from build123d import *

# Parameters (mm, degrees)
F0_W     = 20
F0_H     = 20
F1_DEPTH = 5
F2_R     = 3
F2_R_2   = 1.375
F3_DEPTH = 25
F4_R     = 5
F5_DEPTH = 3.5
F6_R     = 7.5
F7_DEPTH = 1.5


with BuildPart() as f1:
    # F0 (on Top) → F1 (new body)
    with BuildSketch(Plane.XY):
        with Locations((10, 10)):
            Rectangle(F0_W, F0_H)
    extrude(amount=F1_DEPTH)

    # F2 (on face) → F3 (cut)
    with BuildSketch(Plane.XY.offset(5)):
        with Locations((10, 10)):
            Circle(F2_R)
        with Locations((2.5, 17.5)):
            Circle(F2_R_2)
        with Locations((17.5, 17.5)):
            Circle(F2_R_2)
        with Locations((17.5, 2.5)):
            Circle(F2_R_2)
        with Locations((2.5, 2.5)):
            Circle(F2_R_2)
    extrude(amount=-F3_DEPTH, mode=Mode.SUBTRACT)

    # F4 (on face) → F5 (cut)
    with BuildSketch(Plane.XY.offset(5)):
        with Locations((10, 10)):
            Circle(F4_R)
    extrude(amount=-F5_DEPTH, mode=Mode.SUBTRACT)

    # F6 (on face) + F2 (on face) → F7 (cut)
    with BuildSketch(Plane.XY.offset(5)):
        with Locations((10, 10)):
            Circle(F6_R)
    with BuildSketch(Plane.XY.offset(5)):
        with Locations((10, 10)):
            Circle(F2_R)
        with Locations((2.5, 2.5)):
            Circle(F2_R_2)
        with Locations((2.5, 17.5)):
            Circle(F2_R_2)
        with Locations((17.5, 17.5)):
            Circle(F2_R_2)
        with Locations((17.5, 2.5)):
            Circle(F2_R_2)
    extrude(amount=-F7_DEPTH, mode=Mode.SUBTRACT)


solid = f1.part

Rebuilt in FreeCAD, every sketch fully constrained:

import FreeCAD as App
import Part
import Sketcher

V = App.Vector

doc = App.newDocument("Part")
body = doc.addObject("PartDesign::Body", "Body")

# Sketch on XY plane
sketch1 = body.newObject("Sketcher::SketchObject", "Sketch")
sketch1.AttachmentSupport = (doc.getObject("XY_Plane"), [""])
sketch1.MapMode = "FlatFace"
sketch1.addGeometry([
    Part.LineSegment(V(0, 20, 0), V(0, 0, 0)),
    Part.LineSegment(V(0, 0, 0), V(20, 0, 0)),
    Part.LineSegment(V(20, 0, 0), V(20, 20, 0)),
    Part.LineSegment(V(20, 20, 0), V(0, 20, 0)),
], False)
sketch1.addConstraint([
    Sketcher.Constraint("Coincident", 0, 2, 1, 1),
    Sketcher.Constraint("Coincident", 1, 2, 2, 1),
    Sketcher.Constraint("Coincident", 2, 2, 3, 1),
    Sketcher.Constraint("Coincident", 3, 2, 0, 1),
    Sketcher.Constraint("Vertical", 0),
    Sketcher.Constraint("Horizontal", 1),
    Sketcher.Constraint("Vertical", 2),
    Sketcher.Constraint("Horizontal", 3),
    Sketcher.Constraint("Coincident", 0, 2, -1, 1),
    Sketcher.Constraint("Equal", 3, 0),
    Sketcher.Constraint("DistanceX", 1, 1, 1, 2, 20.0),
])
pad1 = body.newObject("PartDesign::Pad", "Pad")
pad1.Profile = sketch1
pad1.Length = 5

# Sketch on XY plane
sketch2 = body.newObject("Sketcher::SketchObject", "Sketch001")
sketch2.AttachmentSupport = (doc.getObject("XY_Plane"), [""])
sketch2.MapMode = "FlatFace"
sketch2.AttachmentOffset = App.Placement(V(0, 0, 5), App.Rotation())
sketch2.addGeometry([
    Part.Circle(V(10, 10, 0), V(0, 0, 1), 3),  # 0
    Part.Circle(V(2.5, 17.5, 0), V(0, 0, 1), 1.4),  # 1
    Part.Circle(V(17.5, 17.5, 0), V(0, 0, 1), 1.4),  # 2
    Part.Circle(V(17.5, 2.5, 0), V(0, 0, 1), 1.4),  # 3
    Part.Circle(V(2.5, 2.5, 0), V(0, 0, 1), 1.4),  # 4
], False)
sketch2.addConstraint([
    Sketcher.Constraint("Equal", 1, 2),
    Sketcher.Constraint("Equal", 2, 3),
    Sketcher.Constraint("Equal", 3, 4),
    Sketcher.Constraint("Horizontal", 1, 3, 2, 3),
    Sketcher.Constraint("Horizontal", 3, 3, 4, 3),
    Sketcher.Constraint("Vertical", 2, 3, 3, 3),
    Sketcher.Constraint("Vertical", 1, 3, 4, 3),
    Sketcher.Constraint("Diameter", 0, 6.0),
    Sketcher.Constraint("Diameter", 1, 2.75),
    Sketcher.Constraint("DistanceX", -1, 1, 0, 3, 10.0),
    Sketcher.Constraint("DistanceY", -1, 1, 0, 3, 10.0),
    Sketcher.Constraint("DistanceX", 1, 3, 2, 3, 15.0),
    Sketcher.Constraint("DistanceY", 3, 3, 2, 3, 15.0),
    Sketcher.Constraint("DistanceX", -1, 1, 1, 3, 2.5),
    Sketcher.Constraint("DistanceY", -1, 1, 1, 3, 17.5),
])
pocket1 = body.newObject("PartDesign::Pocket", "Pocket")
pocket1.Profile = sketch2
pocket1.Length = 25

# Sketch on XY plane
sketch3 = body.newObject("Sketcher::SketchObject", "Sketch002")
sketch3.AttachmentSupport = (doc.getObject("XY_Plane"), [""])
sketch3.MapMode = "FlatFace"
sketch3.AttachmentOffset = App.Placement(V(0, 0, 5), App.Rotation())
sketch3.addGeometry(Part.Circle(V(10, 10, 0), V(0, 0, 1), 5), False)
sketch3.addConstraint([
    Sketcher.Constraint("Diameter", 0, 10.0),
    Sketcher.Constraint("DistanceX", -1, 1, 0, 3, 10.0),
    Sketcher.Constraint("DistanceY", -1, 1, 0, 3, 10.0),
])
pocket2 = body.newObject("PartDesign::Pocket", "Pocket001")
pocket2.Profile = sketch3
pocket2.Length = 3.5

# Sketch on XY plane
sketch4 = body.newObject("Sketcher::SketchObject", "Sketch003")
sketch4.AttachmentSupport = (doc.getObject("XY_Plane"), [""])
sketch4.MapMode = "FlatFace"
sketch4.AttachmentOffset = App.Placement(V(0, 0, 5), App.Rotation())
sketch4.addGeometry([
    Part.Circle(V(10, 10, 0), V(0, 0, 1), 7.5),  # 0
    Part.Circle(V(2.5, 2.5, 0), V(0, 0, 1), 1.4),  # 1
    Part.Circle(V(2.5, 17.5, 0), V(0, 0, 1), 1.4),  # 2
    Part.Circle(V(17.5, 17.5, 0), V(0, 0, 1), 1.4),  # 3
    Part.Circle(V(17.5, 2.5, 0), V(0, 0, 1), 1.4),  # 4
], False)
sketch4.addConstraint([
    Sketcher.Constraint("Equal", 1, 2),
    Sketcher.Constraint("Equal", 2, 3),
    Sketcher.Constraint("Equal", 3, 4),
    Sketcher.Constraint("Horizontal", 2, 3, 3, 3),
    Sketcher.Constraint("Horizontal", 1, 3, 4, 3),
    Sketcher.Constraint("Vertical", 1, 3, 2, 3),
    Sketcher.Constraint("Vertical", 3, 3, 4, 3),
    Sketcher.Constraint("Diameter", 0, 15.0),
    Sketcher.Constraint("Diameter", 1, 2.75),
    Sketcher.Constraint("DistanceX", -1, 1, 0, 3, 10.0),
    Sketcher.Constraint("DistanceY", -1, 1, 0, 3, 10.0),
    Sketcher.Constraint("DistanceY", 1, 3, 2, 3, 15.0),
    Sketcher.Constraint("DistanceX", 2, 3, 3, 3, 15.0),
    Sketcher.Constraint("DistanceX", -1, 1, 1, 3, 2.5),
    Sketcher.Constraint("DistanceY", -1, 1, 1, 3, 2.5),
])
pocket3 = body.newObject("PartDesign::Pocket", "Pocket002")
pocket3.Profile = sketch4
pocket3.Length = 1.5

doc.recompute()
